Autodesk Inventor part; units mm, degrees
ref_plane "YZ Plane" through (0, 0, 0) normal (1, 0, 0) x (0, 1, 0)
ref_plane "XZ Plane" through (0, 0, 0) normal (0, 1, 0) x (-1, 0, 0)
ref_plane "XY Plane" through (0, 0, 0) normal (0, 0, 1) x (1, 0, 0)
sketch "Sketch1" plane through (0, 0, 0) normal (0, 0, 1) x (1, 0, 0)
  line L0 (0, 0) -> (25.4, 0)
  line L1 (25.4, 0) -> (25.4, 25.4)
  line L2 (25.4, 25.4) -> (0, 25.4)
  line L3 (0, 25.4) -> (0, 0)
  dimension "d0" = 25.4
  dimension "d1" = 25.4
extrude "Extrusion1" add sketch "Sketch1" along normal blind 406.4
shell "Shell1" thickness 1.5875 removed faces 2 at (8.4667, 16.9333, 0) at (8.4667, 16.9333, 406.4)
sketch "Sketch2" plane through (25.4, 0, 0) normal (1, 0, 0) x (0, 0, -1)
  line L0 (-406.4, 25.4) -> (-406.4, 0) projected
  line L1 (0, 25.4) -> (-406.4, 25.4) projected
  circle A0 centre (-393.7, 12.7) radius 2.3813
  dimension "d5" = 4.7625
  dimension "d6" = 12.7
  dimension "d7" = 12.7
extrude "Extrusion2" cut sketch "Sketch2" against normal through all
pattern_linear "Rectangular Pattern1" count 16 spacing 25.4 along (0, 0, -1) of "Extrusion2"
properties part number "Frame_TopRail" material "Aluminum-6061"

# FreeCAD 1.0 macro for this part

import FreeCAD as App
import Part
import Sketcher
from FreeCAD import Vector
Q = App.Units.Quantity


def faces_at(feature, points):
    """Names of the faces that lie closest to the given points."""
    faces = feature.Shape.Faces
    near = lambda p: min(range(len(faces)), key=lambda i: faces[i].distToShape(Part.Vertex(*p))[0])
    return sorted({f"Face{near(p) + 1}" for p in points})


def add_polygon(sketch, points):
    """Adds a closed chain of lines whose ends are joined by coincident constraints."""
    first, n = sketch.GeometryCount, len(points)
    for a, b in zip(points, points[1:] + points[:1]):
        sketch.addGeometry(Part.LineSegment(App.Vector(*a, 0), App.Vector(*b, 0)), False)
    for i in range(n):
        sketch.addConstraint(Sketcher.Constraint("Coincident", first + i, 2, first + (i + 1) % n, 1))

doc = App.newDocument("Part")
body = doc.addObject("PartDesign::Body", "Body")

# Sketch on XY plane
sketch1 = doc.addObject("Sketcher::SketchObject", "Sketch")
body.addObject(sketch1)
sketch1.AttachmentSupport = (doc.XY_Plane, [""])
sketch1.MapMode = "FlatFace"
add_polygon(sketch1, [(0, 25.4), (0, 0), (25.4, 0), (25.4, 25.4)])  # lines 0-3
sketch1.addConstraint(Sketcher.Constraint("Vertical", 0))
sketch1.addConstraint(Sketcher.Constraint("Horizontal", 1))
sketch1.addConstraint(Sketcher.Constraint("Vertical", 2))
sketch1.addConstraint(Sketcher.Constraint("Horizontal", 3))
sketch1.addConstraint(Sketcher.Constraint("Coincident", 0, 2, -1, 1))
sketch1.addConstraint(Sketcher.Constraint("Equal", 3, 0))
sketch1.addConstraint(Sketcher.Constraint("DistanceX", 1, 1, 1, 2, Q("1 in")))
pad1 = doc.addObject("PartDesign::Pad", "Pad")
body.addObject(pad1)
pad1.Profile = sketch1
pad1.Length = Q("16 in")
doc.recompute()

thickness = doc.addObject("PartDesign::Thickness", "Thickness")
body.addObject(thickness)
thickness.Base = (pad1, faces_at(pad1, [(8.467, 16.933, 0), (8.467, 16.933, 406.4)]))
thickness.Value = Q("0.0625 in")
thickness.Reversed = True
thickness.Join = "Intersection"

# Sketch on YZ plane
sketch2 = doc.addObject("Sketcher::SketchObject", "Sketch001")
body.addObject(sketch2)
sketch2.AttachmentSupport = (doc.YZ_Plane, [""])
sketch2.MapMode = "FlatFace"
sketch2.AttachmentOffset = App.Placement(Vector(0, 0, 1 * 25.4), App.Rotation())
sketch2.addGeometry(Part.Circle(Vector(12.7, 393.7, 0), Vector(0, 0, 1), 2.3813), False)
sketch2.addConstraint(Sketcher.Constraint("Diameter", 0, Q("0.1875 in")))
sketch2.addConstraint(Sketcher.Constraint("DistanceX", -1, 1, 0, 3, Q("0.5 in")))
sketch2.addConstraint(Sketcher.Constraint("DistanceY", -1, 1, 0, 3, Q("15.5 in")))
pocket1 = doc.addObject("PartDesign::Pocket", "Pocket")
body.addObject(pocket1)
pocket1.Profile = sketch2
pocket1.Type = "ThroughAll"
doc.recompute()

linearpattern = doc.addObject("PartDesign::LinearPattern", "LinearPattern")
body.addObject(linearpattern)
linearpattern.Originals = [pocket1]
linearpattern.Direction = (doc.Z_Axis, [""])
linearpattern.Mode = "offset"
linearpattern.Offset = Q("1 in")
linearpattern.Occurrences = 16
linearpattern.Reversed = True
body.Tip = linearpattern

doc.recompute()
